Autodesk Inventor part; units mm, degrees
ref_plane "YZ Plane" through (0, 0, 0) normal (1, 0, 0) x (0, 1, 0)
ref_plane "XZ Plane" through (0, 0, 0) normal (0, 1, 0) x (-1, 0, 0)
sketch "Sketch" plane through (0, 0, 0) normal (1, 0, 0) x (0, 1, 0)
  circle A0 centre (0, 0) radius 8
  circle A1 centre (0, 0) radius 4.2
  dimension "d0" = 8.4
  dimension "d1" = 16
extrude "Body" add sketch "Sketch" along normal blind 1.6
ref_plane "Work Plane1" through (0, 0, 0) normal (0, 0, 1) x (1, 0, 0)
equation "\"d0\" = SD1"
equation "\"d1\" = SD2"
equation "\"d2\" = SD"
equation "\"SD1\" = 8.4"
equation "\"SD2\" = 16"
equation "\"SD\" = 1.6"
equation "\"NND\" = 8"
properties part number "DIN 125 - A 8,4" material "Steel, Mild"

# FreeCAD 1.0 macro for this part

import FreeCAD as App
import Part
import Sketcher
Q = App.Units.Quantity

doc = App.newDocument("Part")
body = doc.addObject("PartDesign::Body", "Body")

sketch1 = body.newObject("Sketcher::SketchObject", "Sketch")
sketch1.AttachmentSupport = (doc.getObject("YZ_Plane"), [""])
sketch1.MapMode = "FlatFace"
sketch1.addGeometry([
    Part.Circle(App.Vector(0, 0, 0), App.Vector(0, 0, 1), 8),
    Part.Circle(App.Vector(0, 0, 0), App.Vector(0, 0, 1), 4.2),
], False)
sketch1.addConstraint([
    Sketcher.Constraint("Coincident", 0, 3, -1, 1),
    Sketcher.Constraint("Coincident", 1, 3, -1, 1),
    Sketcher.Constraint("Diameter", 0, Q("16 mm")),
    Sketcher.Constraint("Diameter", 1, Q("8.4 mm")),
])
pad1 = body.newObject("PartDesign::Pad", "Pad")
pad1.Profile = sketch1
pad1.Length = 1.6

doc.recompute()
